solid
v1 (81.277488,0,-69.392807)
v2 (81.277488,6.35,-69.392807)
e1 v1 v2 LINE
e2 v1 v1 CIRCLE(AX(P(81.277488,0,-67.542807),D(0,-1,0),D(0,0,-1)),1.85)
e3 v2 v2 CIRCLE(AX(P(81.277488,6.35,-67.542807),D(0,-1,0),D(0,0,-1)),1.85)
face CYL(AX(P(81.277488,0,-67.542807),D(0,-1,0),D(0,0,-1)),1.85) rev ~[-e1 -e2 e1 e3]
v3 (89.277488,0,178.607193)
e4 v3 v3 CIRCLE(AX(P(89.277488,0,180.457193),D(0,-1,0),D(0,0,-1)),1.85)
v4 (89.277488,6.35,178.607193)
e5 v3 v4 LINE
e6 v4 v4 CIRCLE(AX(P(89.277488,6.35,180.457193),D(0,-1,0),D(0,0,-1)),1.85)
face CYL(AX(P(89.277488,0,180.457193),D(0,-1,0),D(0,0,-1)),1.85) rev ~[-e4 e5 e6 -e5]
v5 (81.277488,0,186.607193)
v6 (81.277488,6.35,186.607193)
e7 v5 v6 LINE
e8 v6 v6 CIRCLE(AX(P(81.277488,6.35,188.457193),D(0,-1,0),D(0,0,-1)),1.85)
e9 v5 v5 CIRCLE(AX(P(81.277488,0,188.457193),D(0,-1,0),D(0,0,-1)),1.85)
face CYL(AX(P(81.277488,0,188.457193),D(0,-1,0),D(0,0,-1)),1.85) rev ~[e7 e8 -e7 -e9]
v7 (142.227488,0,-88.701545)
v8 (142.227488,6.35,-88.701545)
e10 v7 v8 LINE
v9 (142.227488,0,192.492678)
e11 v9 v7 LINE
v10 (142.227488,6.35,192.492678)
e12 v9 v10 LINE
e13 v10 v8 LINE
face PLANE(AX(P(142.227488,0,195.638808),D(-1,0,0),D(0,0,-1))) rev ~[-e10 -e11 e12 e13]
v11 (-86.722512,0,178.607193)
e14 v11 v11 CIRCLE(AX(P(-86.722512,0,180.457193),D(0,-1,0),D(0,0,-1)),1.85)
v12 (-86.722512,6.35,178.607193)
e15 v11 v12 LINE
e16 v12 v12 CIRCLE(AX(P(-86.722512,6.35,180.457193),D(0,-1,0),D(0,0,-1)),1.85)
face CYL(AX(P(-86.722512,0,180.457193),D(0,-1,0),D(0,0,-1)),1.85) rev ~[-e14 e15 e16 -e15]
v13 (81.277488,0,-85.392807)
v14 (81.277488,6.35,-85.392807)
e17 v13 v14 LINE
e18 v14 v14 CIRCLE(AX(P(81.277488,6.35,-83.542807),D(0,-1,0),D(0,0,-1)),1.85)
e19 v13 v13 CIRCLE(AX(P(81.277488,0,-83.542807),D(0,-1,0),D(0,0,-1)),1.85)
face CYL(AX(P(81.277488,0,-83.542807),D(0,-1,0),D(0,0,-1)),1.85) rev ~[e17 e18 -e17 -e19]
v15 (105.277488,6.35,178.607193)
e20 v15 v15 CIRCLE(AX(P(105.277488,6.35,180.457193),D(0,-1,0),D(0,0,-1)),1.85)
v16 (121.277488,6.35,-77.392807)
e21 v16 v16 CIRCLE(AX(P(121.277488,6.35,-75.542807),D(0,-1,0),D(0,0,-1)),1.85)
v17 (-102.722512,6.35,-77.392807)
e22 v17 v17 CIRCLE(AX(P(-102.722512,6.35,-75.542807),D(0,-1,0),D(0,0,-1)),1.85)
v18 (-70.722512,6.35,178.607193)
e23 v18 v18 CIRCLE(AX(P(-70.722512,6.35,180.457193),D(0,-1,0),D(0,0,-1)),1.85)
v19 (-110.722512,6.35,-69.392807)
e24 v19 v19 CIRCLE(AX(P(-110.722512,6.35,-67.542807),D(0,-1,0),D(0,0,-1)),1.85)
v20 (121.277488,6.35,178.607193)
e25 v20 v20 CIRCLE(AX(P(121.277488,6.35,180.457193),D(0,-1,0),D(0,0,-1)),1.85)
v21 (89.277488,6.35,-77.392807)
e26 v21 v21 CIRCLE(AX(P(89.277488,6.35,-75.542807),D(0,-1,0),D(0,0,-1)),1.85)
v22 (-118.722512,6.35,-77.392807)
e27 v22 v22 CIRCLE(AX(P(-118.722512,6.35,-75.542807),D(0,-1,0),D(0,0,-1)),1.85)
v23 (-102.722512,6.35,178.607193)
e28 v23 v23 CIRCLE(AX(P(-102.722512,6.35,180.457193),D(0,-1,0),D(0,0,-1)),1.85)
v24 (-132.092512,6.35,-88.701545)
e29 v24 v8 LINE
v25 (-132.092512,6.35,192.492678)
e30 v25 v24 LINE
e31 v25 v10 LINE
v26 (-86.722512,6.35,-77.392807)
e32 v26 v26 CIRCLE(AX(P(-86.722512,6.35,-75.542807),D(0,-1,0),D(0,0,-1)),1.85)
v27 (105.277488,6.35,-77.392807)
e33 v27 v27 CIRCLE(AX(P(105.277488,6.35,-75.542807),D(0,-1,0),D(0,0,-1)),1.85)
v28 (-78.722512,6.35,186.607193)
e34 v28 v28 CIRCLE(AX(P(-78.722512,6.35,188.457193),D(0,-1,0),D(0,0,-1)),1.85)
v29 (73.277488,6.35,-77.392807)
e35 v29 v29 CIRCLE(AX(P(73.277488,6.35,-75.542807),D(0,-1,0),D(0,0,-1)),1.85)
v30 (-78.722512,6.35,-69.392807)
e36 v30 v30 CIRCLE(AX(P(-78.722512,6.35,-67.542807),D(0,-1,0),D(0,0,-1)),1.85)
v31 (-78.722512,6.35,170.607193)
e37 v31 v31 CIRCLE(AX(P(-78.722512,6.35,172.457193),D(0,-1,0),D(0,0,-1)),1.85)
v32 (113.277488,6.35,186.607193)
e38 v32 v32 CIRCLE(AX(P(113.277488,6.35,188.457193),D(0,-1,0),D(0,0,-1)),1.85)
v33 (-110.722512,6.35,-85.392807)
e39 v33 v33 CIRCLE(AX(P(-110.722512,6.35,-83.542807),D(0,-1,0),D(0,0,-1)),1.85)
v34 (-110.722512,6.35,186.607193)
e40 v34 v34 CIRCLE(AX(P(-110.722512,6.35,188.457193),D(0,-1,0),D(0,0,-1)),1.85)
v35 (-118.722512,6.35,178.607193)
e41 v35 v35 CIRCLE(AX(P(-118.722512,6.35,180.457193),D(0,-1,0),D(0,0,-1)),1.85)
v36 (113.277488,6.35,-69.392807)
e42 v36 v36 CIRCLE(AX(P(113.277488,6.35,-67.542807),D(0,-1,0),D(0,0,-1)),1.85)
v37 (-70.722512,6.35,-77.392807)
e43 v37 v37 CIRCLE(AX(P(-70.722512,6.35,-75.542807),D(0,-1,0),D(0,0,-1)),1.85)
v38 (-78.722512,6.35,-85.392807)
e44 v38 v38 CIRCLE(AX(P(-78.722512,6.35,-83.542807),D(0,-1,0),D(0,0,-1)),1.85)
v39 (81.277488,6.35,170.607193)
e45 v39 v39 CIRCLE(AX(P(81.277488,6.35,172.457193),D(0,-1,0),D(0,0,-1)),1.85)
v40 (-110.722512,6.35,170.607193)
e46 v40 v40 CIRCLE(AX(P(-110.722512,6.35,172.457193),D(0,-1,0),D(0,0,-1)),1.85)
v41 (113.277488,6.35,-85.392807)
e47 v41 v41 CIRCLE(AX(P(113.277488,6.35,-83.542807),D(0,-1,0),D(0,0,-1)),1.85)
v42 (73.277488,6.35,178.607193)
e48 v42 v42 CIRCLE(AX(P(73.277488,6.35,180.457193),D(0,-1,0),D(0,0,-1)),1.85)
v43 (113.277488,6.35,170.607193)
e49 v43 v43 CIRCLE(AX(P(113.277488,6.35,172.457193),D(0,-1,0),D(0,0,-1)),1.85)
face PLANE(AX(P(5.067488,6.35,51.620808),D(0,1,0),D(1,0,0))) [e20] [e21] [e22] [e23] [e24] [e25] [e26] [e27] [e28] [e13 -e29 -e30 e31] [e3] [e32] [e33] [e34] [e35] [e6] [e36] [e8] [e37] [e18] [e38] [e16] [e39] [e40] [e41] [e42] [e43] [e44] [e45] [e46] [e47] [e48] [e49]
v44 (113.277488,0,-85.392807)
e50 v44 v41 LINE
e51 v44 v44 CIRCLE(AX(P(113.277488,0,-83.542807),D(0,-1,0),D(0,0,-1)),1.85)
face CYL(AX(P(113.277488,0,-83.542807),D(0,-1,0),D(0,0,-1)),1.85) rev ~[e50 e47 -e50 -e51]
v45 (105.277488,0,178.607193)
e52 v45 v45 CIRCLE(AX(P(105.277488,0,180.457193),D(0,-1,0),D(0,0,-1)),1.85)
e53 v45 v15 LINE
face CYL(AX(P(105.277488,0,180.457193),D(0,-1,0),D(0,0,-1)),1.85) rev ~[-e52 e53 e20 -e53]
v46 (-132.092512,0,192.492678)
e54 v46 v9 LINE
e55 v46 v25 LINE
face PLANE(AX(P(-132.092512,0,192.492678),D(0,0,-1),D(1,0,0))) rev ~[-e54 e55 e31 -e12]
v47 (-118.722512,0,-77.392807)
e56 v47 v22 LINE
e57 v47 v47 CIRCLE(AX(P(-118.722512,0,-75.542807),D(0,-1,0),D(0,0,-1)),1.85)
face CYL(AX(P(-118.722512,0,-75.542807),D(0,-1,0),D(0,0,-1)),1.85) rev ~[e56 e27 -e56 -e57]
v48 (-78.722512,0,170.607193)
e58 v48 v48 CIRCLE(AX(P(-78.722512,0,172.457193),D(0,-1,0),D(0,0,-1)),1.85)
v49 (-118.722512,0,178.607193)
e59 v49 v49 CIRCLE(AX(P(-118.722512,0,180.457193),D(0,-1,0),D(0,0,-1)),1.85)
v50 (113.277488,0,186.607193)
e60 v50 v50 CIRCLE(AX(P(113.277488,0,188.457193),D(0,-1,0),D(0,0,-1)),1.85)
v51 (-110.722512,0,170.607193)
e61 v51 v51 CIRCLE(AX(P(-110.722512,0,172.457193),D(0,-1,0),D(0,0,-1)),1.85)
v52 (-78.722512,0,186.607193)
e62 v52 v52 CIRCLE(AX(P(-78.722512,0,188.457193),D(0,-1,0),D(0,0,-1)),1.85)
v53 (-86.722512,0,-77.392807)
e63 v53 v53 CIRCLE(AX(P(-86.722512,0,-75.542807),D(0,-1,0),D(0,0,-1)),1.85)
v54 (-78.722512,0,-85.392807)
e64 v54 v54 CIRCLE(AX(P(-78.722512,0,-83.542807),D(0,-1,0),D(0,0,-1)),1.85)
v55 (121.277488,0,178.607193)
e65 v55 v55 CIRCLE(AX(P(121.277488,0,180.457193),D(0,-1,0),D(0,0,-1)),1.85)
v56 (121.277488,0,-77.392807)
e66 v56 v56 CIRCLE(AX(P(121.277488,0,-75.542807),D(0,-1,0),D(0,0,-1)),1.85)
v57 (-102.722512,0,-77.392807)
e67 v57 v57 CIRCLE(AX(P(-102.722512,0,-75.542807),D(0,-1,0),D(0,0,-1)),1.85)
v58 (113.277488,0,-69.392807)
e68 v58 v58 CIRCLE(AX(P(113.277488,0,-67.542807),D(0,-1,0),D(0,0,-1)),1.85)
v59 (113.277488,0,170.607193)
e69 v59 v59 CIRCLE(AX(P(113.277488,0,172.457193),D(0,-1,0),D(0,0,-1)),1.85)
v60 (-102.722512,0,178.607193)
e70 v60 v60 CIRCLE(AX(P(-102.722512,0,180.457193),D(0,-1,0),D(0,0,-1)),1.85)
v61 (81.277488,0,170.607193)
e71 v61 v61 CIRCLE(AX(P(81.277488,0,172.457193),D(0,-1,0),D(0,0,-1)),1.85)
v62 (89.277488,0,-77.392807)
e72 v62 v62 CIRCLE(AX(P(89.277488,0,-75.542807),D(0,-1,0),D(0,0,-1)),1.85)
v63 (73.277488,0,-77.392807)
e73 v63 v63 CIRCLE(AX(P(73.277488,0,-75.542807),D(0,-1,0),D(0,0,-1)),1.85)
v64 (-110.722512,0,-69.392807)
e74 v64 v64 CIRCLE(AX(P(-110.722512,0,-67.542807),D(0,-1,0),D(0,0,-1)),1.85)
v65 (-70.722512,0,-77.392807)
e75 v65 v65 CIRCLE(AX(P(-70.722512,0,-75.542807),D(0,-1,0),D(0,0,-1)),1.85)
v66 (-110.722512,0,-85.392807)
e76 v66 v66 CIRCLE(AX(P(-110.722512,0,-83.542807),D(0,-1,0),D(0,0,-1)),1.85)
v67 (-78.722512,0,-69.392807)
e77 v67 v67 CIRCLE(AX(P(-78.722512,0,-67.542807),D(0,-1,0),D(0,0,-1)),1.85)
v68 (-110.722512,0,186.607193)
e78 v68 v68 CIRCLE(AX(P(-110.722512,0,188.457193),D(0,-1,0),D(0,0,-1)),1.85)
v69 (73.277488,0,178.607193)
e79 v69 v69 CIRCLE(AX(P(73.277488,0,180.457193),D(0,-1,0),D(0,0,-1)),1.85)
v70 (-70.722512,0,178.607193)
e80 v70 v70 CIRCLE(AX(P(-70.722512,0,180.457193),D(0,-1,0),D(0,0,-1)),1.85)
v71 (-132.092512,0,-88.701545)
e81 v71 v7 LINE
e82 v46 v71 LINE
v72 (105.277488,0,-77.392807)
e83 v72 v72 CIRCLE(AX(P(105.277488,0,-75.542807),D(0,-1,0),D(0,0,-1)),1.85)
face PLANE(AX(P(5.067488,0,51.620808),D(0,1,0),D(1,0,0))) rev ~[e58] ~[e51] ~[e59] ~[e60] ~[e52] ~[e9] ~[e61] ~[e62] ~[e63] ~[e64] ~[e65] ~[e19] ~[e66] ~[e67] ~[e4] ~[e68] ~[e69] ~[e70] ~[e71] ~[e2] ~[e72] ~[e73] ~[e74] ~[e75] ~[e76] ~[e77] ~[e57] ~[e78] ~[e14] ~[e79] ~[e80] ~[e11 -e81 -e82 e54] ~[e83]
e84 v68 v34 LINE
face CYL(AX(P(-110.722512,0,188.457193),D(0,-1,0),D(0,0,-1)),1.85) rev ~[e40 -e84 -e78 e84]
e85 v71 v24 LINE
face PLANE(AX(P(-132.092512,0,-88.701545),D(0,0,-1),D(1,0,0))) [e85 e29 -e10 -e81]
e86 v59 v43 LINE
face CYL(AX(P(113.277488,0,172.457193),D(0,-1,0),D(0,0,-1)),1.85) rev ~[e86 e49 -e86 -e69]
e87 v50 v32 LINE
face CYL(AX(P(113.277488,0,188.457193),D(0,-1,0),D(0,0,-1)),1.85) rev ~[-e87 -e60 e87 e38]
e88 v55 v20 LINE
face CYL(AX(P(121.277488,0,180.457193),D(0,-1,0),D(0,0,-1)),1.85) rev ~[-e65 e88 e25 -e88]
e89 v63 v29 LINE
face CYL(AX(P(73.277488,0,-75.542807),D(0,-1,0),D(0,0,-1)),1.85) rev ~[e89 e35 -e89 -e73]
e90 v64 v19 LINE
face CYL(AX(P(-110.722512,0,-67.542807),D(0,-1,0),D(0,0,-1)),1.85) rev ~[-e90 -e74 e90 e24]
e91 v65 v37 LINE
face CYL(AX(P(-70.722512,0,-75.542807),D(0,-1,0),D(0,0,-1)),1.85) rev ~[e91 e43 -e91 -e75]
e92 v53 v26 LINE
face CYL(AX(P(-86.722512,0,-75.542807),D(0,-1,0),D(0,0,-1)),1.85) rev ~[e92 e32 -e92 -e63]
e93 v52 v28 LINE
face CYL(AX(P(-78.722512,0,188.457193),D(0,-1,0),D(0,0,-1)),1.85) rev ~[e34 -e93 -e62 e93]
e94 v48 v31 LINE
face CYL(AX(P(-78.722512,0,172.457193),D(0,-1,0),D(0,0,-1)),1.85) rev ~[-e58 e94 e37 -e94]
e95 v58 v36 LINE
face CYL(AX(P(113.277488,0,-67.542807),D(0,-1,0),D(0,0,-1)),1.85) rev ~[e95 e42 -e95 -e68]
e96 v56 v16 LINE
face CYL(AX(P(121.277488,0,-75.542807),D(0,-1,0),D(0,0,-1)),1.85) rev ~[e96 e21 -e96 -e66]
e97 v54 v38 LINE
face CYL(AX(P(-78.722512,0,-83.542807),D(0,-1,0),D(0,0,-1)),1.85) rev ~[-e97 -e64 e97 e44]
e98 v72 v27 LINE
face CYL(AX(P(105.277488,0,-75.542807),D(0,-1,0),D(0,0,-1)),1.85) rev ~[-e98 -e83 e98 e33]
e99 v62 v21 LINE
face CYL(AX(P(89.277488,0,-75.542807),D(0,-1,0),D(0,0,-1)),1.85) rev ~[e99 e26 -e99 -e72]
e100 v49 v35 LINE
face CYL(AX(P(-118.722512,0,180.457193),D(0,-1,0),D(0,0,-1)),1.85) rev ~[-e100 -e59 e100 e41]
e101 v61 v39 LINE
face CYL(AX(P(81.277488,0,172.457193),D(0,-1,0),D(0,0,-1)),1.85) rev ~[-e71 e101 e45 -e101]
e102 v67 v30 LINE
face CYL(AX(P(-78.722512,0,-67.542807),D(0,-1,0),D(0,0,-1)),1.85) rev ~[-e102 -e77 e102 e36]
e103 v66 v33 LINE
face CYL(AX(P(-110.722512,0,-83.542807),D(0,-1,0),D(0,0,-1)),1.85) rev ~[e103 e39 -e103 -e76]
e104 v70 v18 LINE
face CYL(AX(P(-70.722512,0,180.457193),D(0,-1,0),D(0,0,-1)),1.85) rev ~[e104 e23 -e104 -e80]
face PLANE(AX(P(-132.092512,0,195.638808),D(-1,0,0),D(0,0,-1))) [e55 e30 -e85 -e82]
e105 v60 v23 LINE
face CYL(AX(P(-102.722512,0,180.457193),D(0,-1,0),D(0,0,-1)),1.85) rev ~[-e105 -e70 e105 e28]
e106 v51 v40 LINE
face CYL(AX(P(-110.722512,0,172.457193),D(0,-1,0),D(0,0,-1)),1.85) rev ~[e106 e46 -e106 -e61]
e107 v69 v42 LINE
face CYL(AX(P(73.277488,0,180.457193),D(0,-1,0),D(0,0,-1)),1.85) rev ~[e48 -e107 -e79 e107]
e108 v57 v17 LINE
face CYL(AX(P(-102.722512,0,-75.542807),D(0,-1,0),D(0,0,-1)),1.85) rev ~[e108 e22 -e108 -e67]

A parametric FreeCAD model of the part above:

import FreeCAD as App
import Part
import Sketcher

V = App.Vector
Q = App.Units.Quantity


def add_polygon(sketch, points):
    """Adds a closed chain of lines whose ends are joined by coincident constraints."""
    first, n = sketch.GeometryCount, len(points)
    for a, b in zip(points, points[1:] + points[:1]):
        sketch.addGeometry(Part.LineSegment(App.Vector(*a, 0), App.Vector(*b, 0)), False)
    for i in range(n):
        sketch.addConstraint(Sketcher.Constraint("Coincident", first + i, 2, first + (i + 1) % n, 1))

doc = App.newDocument("Part")
params = doc.addObject("Spreadsheet::Sheet", "Params")
for row, (alias, value) in enumerate([
    ("sketch1_width", "10.8 in"),
    ("sketch1_height", "11.34 in"),
    ("pad1_length", "0.25 in"),
    ("sketch34_width", "10.8 in"),
    ("sketch35_width", "10.8 in"),
], start=1):
    params.set(f"A{row}", alias)
    params.set(f"B{row}", "=" + value)
    params.setAlias(f"B{row}", alias)

body = doc.addObject("PartDesign::Body", "Body")

sketch1 = body.newObject("Sketcher::SketchObject", "Sketch")
sketch1.AttachmentSupport = (doc.getObject("XZ_Plane"), [""])
sketch1.MapMode = "FlatFace"
add_polygon(sketch1, [(-132, -92), (-132, 196), (142, 196), (142, -92)])
sketch1.addConstraint([
    Sketcher.Constraint("Vertical", 0),
    Sketcher.Constraint("Horizontal", 1),
    Sketcher.Constraint("Vertical", 2),
    Sketcher.Constraint("Horizontal", 3),
    Sketcher.Constraint("DistanceX", 1, 1, 1, 2, Q("10.8 in")),
    Sketcher.Constraint("DistanceY", 0, 1, 0, 2, Q("11.34 in")),
    Sketcher.Constraint("DistanceX", 0, 2, -1, 1, Q("132.092512 mm")),
    Sketcher.Constraint("DistanceY", -1, 1, 0, 2, Q("195.638808 mm")),
])
sketch1.setExpression("Constraints[8]", "Params.sketch1_width")
sketch1.setExpression("Constraints[9]", "Params.sketch1_height")
pad1 = body.newObject("PartDesign::Pad", "Pad")
pad1.Profile = sketch1
pad1.setExpression("Length", "Params.pad1_length")
pad1.Reversed = True

sketch2 = body.newObject("Sketcher::SketchObject", "Sketch001")
sketch2.AttachmentSupport = (doc.getObject("XZ_Plane"), [""])
sketch2.MapMode = "FlatFace"
sketch2.addGeometry(Part.Circle(V(-86.7, -75.5, 0), V(0, 0, 1), 1.9), False)
sketch2.addConstraint([
    Sketcher.Constraint("Diameter", 0, Q("3.7 mm")),
    Sketcher.Constraint("DistanceX", 0, 3, -1, 1, Q("86.722512 mm")),
    Sketcher.Constraint("DistanceY", 0, 3, -1, 1, Q("75.542807 mm")),
])
pocket1 = body.newObject("PartDesign::Pocket", "Pocket")
pocket1.Profile = sketch2
pocket1.Type = "UpToFirst"

sketch3 = body.newObject("Sketcher::SketchObject", "Sketch002")
sketch3.AttachmentSupport = (doc.getObject("XZ_Plane"), [""])
sketch3.MapMode = "FlatFace"
sketch3.addGeometry(Part.Circle(V(-118.7, -75.5, 0), V(0, 0, 1), 1.9), False)
sketch3.addConstraint([
    Sketcher.Constraint("Diameter", 0, Q("3.7 mm")),
    Sketcher.Constraint("DistanceX", 0, 3, -1, 1, Q("118.722512 mm")),
    Sketcher.Constraint("DistanceY", 0, 3, -1, 1, Q("75.542807 mm")),
])
pocket2 = body.newObject("PartDesign::Pocket", "Pocket001")
pocket2.Profile = sketch3
pocket2.Type = "UpToFirst"

sketch4 = body.newObject("Sketcher::SketchObject", "Sketch003")
sketch4.AttachmentSupport = (doc.getObject("XZ_Plane"), [""])
sketch4.MapMode = "FlatFace"
sketch4.addGeometry(Part.Circle(V(-110.7, -83.5, 0), V(0, 0, 1), 1.9), False)
sketch4.addConstraint([
    Sketcher.Constraint("Diameter", 0, Q("3.7 mm")),
    Sketcher.Constraint("DistanceX", 0, 3, -1, 1, Q("110.722512 mm")),
    Sketcher.Constraint("DistanceY", 0, 3, -1, 1, Q("83.542807 mm")),
])
pocket3 = body.newObject("PartDesign::Pocket", "Pocket002")
pocket3.Profile = sketch4
pocket3.Type = "UpToFirst"

sketch5 = body.newObject("Sketcher::SketchObject", "Sketch004")
sketch5.AttachmentSupport = (doc.getObject("XZ_Plane"), [""])
sketch5.MapMode = "FlatFace"
sketch5.addGeometry(Part.Circle(V(-102.7, -75.5, 0), V(0, 0, 1), 1.9), False)
sketch5.addConstraint([
    Sketcher.Constraint("Diameter", 0, Q("3.7 mm")),
    Sketcher.Constraint("DistanceX", 0, 3, -1, 1, Q("102.722512 mm")),
    Sketcher.Constraint("DistanceY", 0, 3, -1, 1, Q("75.542807 mm")),
])
pocket4 = body.newObject("PartDesign::Pocket", "Pocket003")
pocket4.Profile = sketch5
pocket4.Type = "UpToFirst"

sketch6 = body.newObject("Sketcher::SketchObject", "Sketch005")
sketch6.AttachmentSupport = (doc.getObject("XZ_Plane"), [""])
sketch6.MapMode = "FlatFace"
sketch6.addGeometry(Part.Circle(V(-110.7, -67.5, 0), V(0, 0, 1), 1.9), False)
sketch6.addConstraint([
    Sketcher.Constraint("Diameter", 0, Q("3.7 mm")),
    Sketcher.Constraint("DistanceX", 0, 3, -1, 1, Q("110.722512 mm")),
    Sketcher.Constraint("DistanceY", 0, 3, -1, 1, Q("67.542807 mm")),
])
pocket5 = body.newObject("PartDesign::Pocket", "Pocket004")
pocket5.Profile = sketch6
pocket5.Type = "UpToFirst"

sketch7 = body.newObject("Sketcher::SketchObject", "Sketch006")
sketch7.AttachmentSupport = (doc.getObject("XZ_Plane"), [""])
sketch7.MapMode = "FlatFace"
sketch7.addGeometry(Part.Circle(V(-70.7, -75.5, 0), V(0, 0, 1), 1.9), False)
sketch7.addConstraint([
    Sketcher.Constraint("Diameter", 0, Q("3.7 mm")),
    Sketcher.Constraint("DistanceX", 0, 3, -1, 1, Q("70.722512 mm")),
    Sketcher.Constraint("DistanceY", 0, 3, -1, 1, Q("75.542807 mm")),
])
pocket6 = body.newObject("PartDesign::Pocket", "Pocket005")
pocket6.Profile = sketch7
pocket6.Type = "UpToFirst"

sketch8 = body.newObject("Sketcher::SketchObject", "Sketch007")
sketch8.AttachmentSupport = (doc.getObject("XZ_Plane"), [""])
sketch8.MapMode = "FlatFace"
sketch8.addGeometry(Part.Circle(V(-78.7, -67.5, 0), V(0, 0, 1), 1.9), False)
sketch8.addConstraint([
    Sketcher.Constraint("Diameter", 0, Q("3.7 mm")),
    Sketcher.Constraint("DistanceX", 0, 3, -1, 1, Q("78.722512 mm")),
    Sketcher.Constraint("DistanceY", 0, 3, -1, 1, Q("67.542807 mm")),
])
pocket7 = body.newObject("PartDesign::Pocket", "Pocket006")
pocket7.Profile = sketch8
pocket7.Type = "UpToFirst"

sketch9 = body.newObject("Sketcher::SketchObject", "Sketch008")
sketch9.AttachmentSupport = (doc.getObject("XZ_Plane"), [""])
sketch9.MapMode = "FlatFace"
sketch9.addGeometry(Part.Circle(V(-78.7, -83.5, 0), V(0, 0, 1), 1.9), False)
sketch9.addConstraint([
    Sketcher.Constraint("Diameter", 0, Q("3.7 mm")),
    Sketcher.Constraint("DistanceX", 0, 3, -1, 1, Q("78.722512 mm")),
    Sketcher.Constraint("DistanceY", 0, 3, -1, 1, Q("83.542807 mm")),
])
pocket8 = body.newObject("PartDesign::Pocket", "Pocket007")
pocket8.Profile = sketch9
pocket8.Type = "UpToFirst"

sketch10 = body.newObject("Sketcher::SketchObject", "Sketch009")
sketch10.AttachmentSupport = (doc.getObject("XZ_Plane"), [""])
sketch10.MapMode = "FlatFace"
sketch10.addGeometry(Part.Circle(V(121.3, -75.5, 0), V(0, 0, 1), 1.9), False)
sketch10.addConstraint([
    Sketcher.Constraint("Diameter", 0, Q("3.7 mm")),
    Sketcher.Constraint("DistanceX", -1, 1, 0, 3, Q("121.277488 mm")),
    Sketcher.Constraint("DistanceY", 0, 3, -1, 1, Q("75.542807 mm")),
])
pocket9 = body.newObject("PartDesign::Pocket", "Pocket008")
pocket9.Profile = sketch10
pocket9.Type = "UpToFirst"

sketch11 = body.newObject("Sketcher::SketchObject", "Sketch010")
sketch11.AttachmentSupport = (doc.getObject("XZ_Plane"), [""])
sketch11.MapMode = "FlatFace"
sketch11.addGeometry(Part.Circle(V(105.3, -75.5, 0), V(0, 0, 1), 1.9), False)
sketch11.addConstraint([
    Sketcher.Constraint("Diameter", 0, Q("3.7 mm")),
    Sketcher.Constraint("DistanceX", -1, 1, 0, 3, Q("105.277488 mm")),
    Sketcher.Constraint("DistanceY", 0, 3, -1, 1, Q("75.542807 mm")),
])
pocket10 = body.newObject("PartDesign::Pocket", "Pocket009")
pocket10.Profile = sketch11
pocket10.Type = "UpToFirst"

sketch12 = body.newObject("Sketcher::SketchObject", "Sketch011")
sketch12.AttachmentSupport = (doc.getObject("XZ_Plane"), [""])
sketch12.MapMode = "FlatFace"
sketch12.addGeometry(Part.Circle(V(113.3, -83.5, 0), V(0, 0, 1), 1.9), False)
sketch12.addConstraint([
    Sketcher.Constraint("Diameter", 0, Q("3.7 mm")),
    Sketcher.Constraint("DistanceX", -1, 1, 0, 3, Q("113.277488 mm")),
    Sketcher.Constraint("DistanceY", 0, 3, -1, 1, Q("83.542807 mm")),
])
pocket11 = body.newObject("PartDesign::Pocket", "Pocket010")
pocket11.Profile = sketch12
pocket11.Type = "UpToFirst"

sketch13 = body.newObject("Sketcher::SketchObject", "Sketch012")
sketch13.AttachmentSupport = (doc.getObject("XZ_Plane"), [""])
sketch13.MapMode = "FlatFace"
sketch13.addGeometry(Part.Circle(V(113.3, -67.5, 0), V(0, 0, 1), 1.9), False)
sketch13.addConstraint([
    Sketcher.Constraint("Diameter", 0, Q("3.7 mm")),
    Sketcher.Constraint("DistanceX", -1, 1, 0, 3, Q("113.277488 mm")),
    Sketcher.Constraint("DistanceY", 0, 3, -1, 1, Q("67.542807 mm")),
])
pocket12 = body.newObject("PartDesign::Pocket", "Pocket011")
pocket12.Profile = sketch13
pocket12.Type = "UpToFirst"

sketch14 = body.newObject("Sketcher::SketchObject", "Sketch013")
sketch14.AttachmentSupport = (doc.getObject("XZ_Plane"), [""])
sketch14.MapMode = "FlatFace"
sketch14.addGeometry(Part.Circle(V(89.3, -75.5, 0), V(0, 0, 1), 1.9), False)
sketch14.addConstraint([
    Sketcher.Constraint("Diameter", 0, Q("3.7 mm")),
    Sketcher.Constraint("DistanceX", -1, 1, 0, 3, Q("89.277488 mm")),
    Sketcher.Constraint("DistanceY", 0, 3, -1, 1, Q("75.542807 mm")),
])
pocket13 = body.newObject("PartDesign::Pocket", "Pocket012")
pocket13.Profile = sketch14
pocket13.Type = "UpToFirst"

sketch15 = body.newObject("Sketcher::SketchObject", "Sketch014")
sketch15.AttachmentSupport = (doc.getObject("XZ_Plane"), [""])
sketch15.MapMode = "FlatFace"
sketch15.addGeometry(Part.Circle(V(81.3, -83.5, 0), V(0, 0, 1), 1.9), False)
sketch15.addConstraint([
    Sketcher.Constraint("Diameter", 0, Q("3.7 mm")),
    Sketcher.Constraint("DistanceX", -1, 1, 0, 3, Q("81.277488 mm")),
    Sketcher.Constraint("DistanceY", 0, 3, -1, 1, Q("83.542807 mm")),
])
pocket14 = body.newObject("PartDesign::Pocket", "Pocket013")
pocket14.Profile = sketch15
pocket14.Type = "UpToFirst"

sketch16 = body.newObject("Sketcher::SketchObject", "Sketch015")
sketch16.AttachmentSupport = (doc.getObject("XZ_Plane"), [""])
sketch16.MapMode = "FlatFace"
sketch16.addGeometry(Part.Circle(V(81.3, -67.5, 0), V(0, 0, 1), 1.9), False)
sketch16.addConstraint([
    Sketcher.Constraint("Diameter", 0, Q("3.7 mm")),
    Sketcher.Constraint("DistanceX", -1, 1, 0, 3, Q("81.277488 mm")),
    Sketcher.Constraint("DistanceY", 0, 3, -1, 1, Q("67.542807 mm")),
])
pocket15 = body.newObject("PartDesign::Pocket", "Pocket014")
pocket15.Profile = sketch16
pocket15.Type = "UpToFirst"

sketch17 = body.newObject("Sketcher::SketchObject", "Sketch016")
sketch17.AttachmentSupport = (doc.getObject("XZ_Plane"), [""])
sketch17.MapMode = "FlatFace"
sketch17.addGeometry(Part.Circle(V(73.3, -75.5, 0), V(0, 0, 1), 1.9), False)
sketch17.addConstraint([
    Sketcher.Constraint("Diameter", 0, Q("3.7 mm")),
    Sketcher.Constraint("DistanceX", -1, 1, 0, 3, Q("73.277488 mm")),
    Sketcher.Constraint("DistanceY", 0, 3, -1, 1, Q("75.542807 mm")),
])
pocket16 = body.newObject("PartDesign::Pocket", "Pocket015")
pocket16.Profile = sketch17
pocket16.Type = "UpToFirst"

sketch18 = body.newObject("Sketcher::SketchObject", "Sketch017")
sketch18.AttachmentSupport = (doc.getObject("XZ_Plane"), [""])
sketch18.MapMode = "FlatFace"
sketch18.addGeometry(Part.Circle(V(73.3, 180.5, 0), V(0, 0, 1), 1.9), False)
sketch18.addConstraint([
    Sketcher.Constraint("Diameter", 0, Q("3.7 mm")),
    Sketcher.Constraint("DistanceX", -1, 1, 0, 3, Q("73.277488 mm")),
    Sketcher.Constraint("DistanceY", -1, 1, 0, 3, Q("180.457193 mm")),
])
pocket17 = body.newObject("PartDesign::Pocket", "Pocket016")
pocket17.Profile = sketch18
pocket17.Type = "UpToFirst"

sketch19 = body.newObject("Sketcher::SketchObject", "Sketch018")
sketch19.AttachmentSupport = (doc.getObject("XZ_Plane"), [""])
sketch19.MapMode = "FlatFace"
sketch19.addGeometry(Part.Circle(V(81.3, 188.5, 0), V(0, 0, 1), 1.9), False)
sketch19.addConstraint([
    Sketcher.Constraint("Diameter", 0, Q("3.7 mm")),
    Sketcher.Constraint("DistanceX", -1, 1, 0, 3, Q("81.277488 mm")),
    Sketcher.Constraint("DistanceY", -1, 1, 0, 3, Q("188.457193 mm")),
])
pocket18 = body.newObject("PartDesign::Pocket", "Pocket017")
pocket18.Profile = sketch19
pocket18.Type = "UpToFirst"

sketch20 = body.newObject("Sketcher::SketchObject", "Sketch019")
sketch20.AttachmentSupport = (doc.getObject("XZ_Plane"), [""])
sketch20.MapMode = "FlatFace"
sketch20.addGeometry(Part.Circle(V(81.3, 172.5, 0), V(0, 0, 1), 1.9), False)
sketch20.addConstraint([
    Sketcher.Constraint("Diameter", 0, Q("3.7 mm")),
    Sketcher.Constraint("DistanceX", -1, 1, 0, 3, Q("81.277488 mm")),
    Sketcher.Constraint("DistanceY", -1, 1, 0, 3, Q("172.457193 mm")),
])
pocket19 = body.newObject("PartDesign::Pocket", "Pocket018")
pocket19.Profile = sketch20
pocket19.Type = "UpToFirst"

sketch21 = body.newObject("Sketcher::SketchObject", "Sketch020")
sketch21.AttachmentSupport = (doc.getObject("XZ_Plane"), [""])
sketch21.MapMode = "FlatFace"
sketch21.addGeometry(Part.Circle(V(89.3, 180.5, 0), V(0, 0, 1), 1.9), False)
sketch21.addConstraint([
    Sketcher.Constraint("Diameter", 0, Q("3.7 mm")),
    Sketcher.Constraint("DistanceX", -1, 1, 0, 3, Q("89.277488 mm")),
    Sketcher.Constraint("DistanceY", -1, 1, 0, 3, Q("180.457193 mm")),
])
pocket20 = body.newObject("PartDesign::Pocket", "Pocket019")
pocket20.Profile = sketch21
pocket20.Type = "UpToFirst"

sketch22 = body.newObject("Sketcher::SketchObject", "Sketch021")
sketch22.AttachmentSupport = (doc.getObject("XZ_Plane"), [""])
sketch22.MapMode = "FlatFace"
sketch22.addGeometry(Part.Circle(V(105.3, 180.5, 0), V(0, 0, 1), 1.9), False)
sketch22.addConstraint([
    Sketcher.Constraint("Diameter", 0, Q("3.7 mm")),
    Sketcher.Constraint("DistanceX", -1, 1, 0, 3, Q("105.277488 mm")),
    Sketcher.Constraint("DistanceY", -1, 1, 0, 3, Q("180.457193 mm")),
])
pocket21 = body.newObject("PartDesign::Pocket", "Pocket020")
pocket21.Profile = sketch22
pocket21.Type = "UpToFirst"

sketch23 = body.newObject("Sketcher::SketchObject", "Sketch022")
sketch23.AttachmentSupport = (doc.getObject("XZ_Plane"), [""])
sketch23.MapMode = "FlatFace"
sketch23.addGeometry(Part.Circle(V(113.3, 188.5, 0), V(0, 0, 1), 1.9), False)
sketch23.addConstraint([
    Sketcher.Constraint("Diameter", 0, Q("3.7 mm")),
    Sketcher.Constraint("DistanceX", -1, 1, 0, 3, Q("113.277488 mm")),
    Sketcher.Constraint("DistanceY", -1, 1, 0, 3, Q("188.457193 mm")),
])
pocket22 = body.newObject("PartDesign::Pocket", "Pocket021")
pocket22.Profile = sketch23
pocket22.Type = "UpToFirst"

sketch24 = body.newObject("Sketcher::SketchObject", "Sketch023")
sketch24.AttachmentSupport = (doc.getObject("XZ_Plane"), [""])
sketch24.MapMode = "FlatFace"
sketch24.addGeometry(Part.Circle(V(121.3, 180.5, 0), V(0, 0, 1), 1.9), False)
sketch24.addConstraint([
    Sketcher.Constraint("Diameter", 0, Q("3.7 mm")),
    Sketcher.Constraint("DistanceX", -1, 1, 0, 3, Q("121.277488 mm")),
    Sketcher.Constraint("DistanceY", -1, 1, 0, 3, Q("180.457193 mm")),
])
pocket23 = body.newObject("PartDesign::Pocket", "Pocket022")
pocket23.Profile = sketch24
pocket23.Type = "UpToFirst"

sketch25 = body.newObject("Sketcher::SketchObject", "Sketch024")
sketch25.AttachmentSupport = (doc.getObject("XZ_Plane"), [""])
sketch25.MapMode = "FlatFace"
sketch25.addGeometry(Part.Circle(V(113.3, 172.5, 0), V(0, 0, 1), 1.9), False)
sketch25.addConstraint([
    Sketcher.Constraint("Diameter", 0, Q("3.7 mm")),
    Sketcher.Constraint("DistanceX", -1, 1, 0, 3, Q("113.277488 mm")),
    Sketcher.Constraint("DistanceY", -1, 1, 0, 3, Q("172.457193 mm")),
])
pocket24 = body.newObject("PartDesign::Pocket", "Pocket023")
pocket24.Profile = sketch25
pocket24.Type = "UpToFirst"

sketch26 = body.newObject("Sketcher::SketchObject", "Sketch025")
sketch26.AttachmentSupport = (doc.getObject("XZ_Plane"), [""])
sketch26.MapMode = "FlatFace"
sketch26.addGeometry(Part.Circle(V(-70.7, 180.5, 0), V(0, 0, 1), 1.9), False)
sketch26.addConstraint([
    Sketcher.Constraint("Diameter", 0, Q("3.7 mm")),
    Sketcher.Constraint("DistanceX", 0, 3, -1, 1, Q("70.722512 mm")),
    Sketcher.Constraint("DistanceY", -1, 1, 0, 3, Q("180.457193 mm")),
])
pocket25 = body.newObject("PartDesign::Pocket", "Pocket024")
pocket25.Profile = sketch26
pocket25.Type = "UpToFirst"

sketch27 = body.newObject("Sketcher::SketchObject", "Sketch026")
sketch27.AttachmentSupport = (doc.getObject("XZ_Plane"), [""])
sketch27.MapMode = "FlatFace"
sketch27.addGeometry(Part.Circle(V(-78.7, 188.5, 0), V(0, 0, 1), 1.9), False)
sketch27.addConstraint([
    Sketcher.Constraint("Diameter", 0, Q("3.7 mm")),
    Sketcher.Constraint("DistanceX", 0, 3, -1, 1, Q("78.722512 mm")),
    Sketcher.Constraint("DistanceY", -1, 1, 0, 3, Q("188.457193 mm")),
])
pocket26 = body.newObject("PartDesign::Pocket", "Pocket025")
pocket26.Profile = sketch27
pocket26.Type = "UpToFirst"

sketch28 = body.newObject("Sketcher::SketchObject", "Sketch027")
sketch28.AttachmentSupport = (doc.getObject("XZ_Plane"), [""])
sketch28.MapMode = "FlatFace"
sketch28.addGeometry(Part.Circle(V(-78.7, 172.5, 0), V(0, 0, 1), 1.9), False)
sketch28.addConstraint([
    Sketcher.Constraint("Diameter", 0, Q("3.7 mm")),
    Sketcher.Constraint("DistanceX", 0, 3, -1, 1, Q("78.722512 mm")),
    Sketcher.Constraint("DistanceY", -1, 1, 0, 3, Q("172.457193 mm")),
])
pocket27 = body.newObject("PartDesign::Pocket", "Pocket026")
pocket27.Profile = sketch28
pocket27.Type = "UpToFirst"

sketch29 = body.newObject("Sketcher::SketchObject", "Sketch028")
sketch29.AttachmentSupport = (doc.getObject("XZ_Plane"), [""])
sketch29.MapMode = "FlatFace"
sketch29.addGeometry(Part.Circle(V(-86.7, 180.5, 0), V(0, 0, 1), 1.9), False)
sketch29.addConstraint([
    Sketcher.Constraint("Diameter", 0, Q("3.7 mm")),
    Sketcher.Constraint("DistanceX", 0, 3, -1, 1, Q("86.722512 mm")),
    Sketcher.Constraint("DistanceY", -1, 1, 0, 3, Q("180.457193 mm")),
])
pocket28 = body.newObject("PartDesign::Pocket", "Pocket027")
pocket28.Profile = sketch29
pocket28.Type = "UpToFirst"

sketch30 = body.newObject("Sketcher::SketchObject", "Sketch029")
sketch30.AttachmentSupport = (doc.getObject("XZ_Plane"), [""])
sketch30.MapMode = "FlatFace"
sketch30.addGeometry(Part.Circle(V(-102.7, 180.5, 0), V(0, 0, 1), 1.9), False)
sketch30.addConstraint([
    Sketcher.Constraint("Diameter", 0, Q("3.7 mm")),
    Sketcher.Constraint("DistanceX", 0, 3, -1, 1, Q("102.722512 mm")),
    Sketcher.Constraint("DistanceY", -1, 1, 0, 3, Q("180.457193 mm")),
])
pocket29 = body.newObject("PartDesign::Pocket", "Pocket028")
pocket29.Profile = sketch30
pocket29.Type = "UpToFirst"

sketch31 = body.newObject("Sketcher::SketchObject", "Sketch030")
sketch31.AttachmentSupport = (doc.getObject("XZ_Plane"), [""])
sketch31.MapMode = "FlatFace"
sketch31.addGeometry(Part.Circle(V(-110.7, 188.5, 0), V(0, 0, 1), 1.9), False)
sketch31.addConstraint([
    Sketcher.Constraint("Diameter", 0, Q("3.7 mm")),
    Sketcher.Constraint("DistanceX", 0, 3, -1, 1, Q("110.722512 mm")),
    Sketcher.Constraint("DistanceY", -1, 1, 0, 3, Q("188.457193 mm")),
])
pocket30 = body.newObject("PartDesign::Pocket", "Pocket029")
pocket30.Profile = sketch31
pocket30.Type = "UpToFirst"

sketch32 = body.newObject("Sketcher::SketchObject", "Sketch031")
sketch32.AttachmentSupport = (doc.getObject("XZ_Plane"), [""])
sketch32.MapMode = "FlatFace"
sketch32.addGeometry(Part.Circle(V(-118.7, 180.5, 0), V(0, 0, 1), 1.9), False)
sketch32.addConstraint([
    Sketcher.Constraint("Diameter", 0, Q("3.7 mm")),
    Sketcher.Constraint("DistanceX", 0, 3, -1, 1, Q("118.722512 mm")),
    Sketcher.Constraint("DistanceY", -1, 1, 0, 3, Q("180.457193 mm")),
])
pocket31 = body.newObject("PartDesign::Pocket", "Pocket030")
pocket31.Profile = sketch32
pocket31.Type = "UpToFirst"

sketch33 = body.newObject("Sketcher::SketchObject", "Sketch032")
sketch33.AttachmentSupport = (doc.getObject("XZ_Plane"), [""])
sketch33.MapMode = "FlatFace"
sketch33.addGeometry(Part.Circle(V(-110.7, 172.5, 0), V(0, 0, 1), 1.9), False)
sketch33.addConstraint([
    Sketcher.Constraint("Diameter", 0, Q("3.7 mm")),
    Sketcher.Constraint("DistanceX", 0, 3, -1, 1, Q("110.722512 mm")),
    Sketcher.Constraint("DistanceY", -1, 1, 0, 3, Q("172.457193 mm")),
])
pocket32 = body.newObject("PartDesign::Pocket", "Pocket031")
pocket32.Profile = sketch33
pocket32.Type = "UpToFirst"

sketch34 = body.newObject("Sketcher::SketchObject", "Sketch033")
sketch34.AttachmentSupport = (doc.getObject("XZ_Plane"), [""])
sketch34.MapMode = "FlatFace"
add_polygon(sketch34, [(-132.1, 195.6), (-132.1, 192.5), (142.2, 192.5), (142.2, 195.6)])
sketch34.addConstraint([
    Sketcher.Constraint("Vertical", 0),
    Sketcher.Constraint("Horizontal", 1),
    Sketcher.Constraint("Vertical", 2),
    Sketcher.Constraint("Horizontal", 3),
    Sketcher.Constraint("DistanceX", 1, 1, 1, 2, Q("10.8 in")),
    Sketcher.Constraint("DistanceY", 0, 2, 0, 1, Q("3.146129 mm")),
    Sketcher.Constraint("DistanceY", -1, 1, 0, 2, Q("192.492678 mm")),
    Sketcher.Constraint("DistanceX", 0, 2, -1, 1, Q("132.092512 mm")),
])
sketch34.setExpression("Constraints[8]", "Params.sketch34_width")
pocket33 = body.newObject("PartDesign::Pocket", "Pocket032")
pocket33.Profile = sketch34
pocket33.Type = "UpToFirst"

sketch35 = body.newObject("Sketcher::SketchObject", "Sketch034")
sketch35.AttachmentSupport = (doc.getObject("XZ_Plane"), [""])
sketch35.MapMode = "FlatFace"
add_polygon(sketch35, [(-132.1, -88.7), (-132.1, -92.4), (142.2, -92.4), (142.2, -88.7)])
sketch35.addConstraint([
    Sketcher.Constraint("Vertical", 0),
    Sketcher.Constraint("Horizontal", 1),
    Sketcher.Constraint("Vertical", 2),
    Sketcher.Constraint("Horizontal", 3),
    Sketcher.Constraint("DistanceX", 1, 1, 1, 2, Q("10.8 in")),
    Sketcher.Constraint("DistanceY", 0, 2, 0, 1, Q("3.695647 mm")),
    Sketcher.Constraint("DistanceX", 0, 2, -1, 1, Q("132.092512 mm")),
    Sketcher.Constraint("DistanceY", 0, 2, -1, 1, Q("92.397192 mm")),
])
sketch35.setExpression("Constraints[8]", "Params.sketch35_width")
pocket34 = body.newObject("PartDesign::Pocket", "Pocket033")
pocket34.Profile = sketch35
pocket34.Type = "UpToFirst"

doc.recompute()
